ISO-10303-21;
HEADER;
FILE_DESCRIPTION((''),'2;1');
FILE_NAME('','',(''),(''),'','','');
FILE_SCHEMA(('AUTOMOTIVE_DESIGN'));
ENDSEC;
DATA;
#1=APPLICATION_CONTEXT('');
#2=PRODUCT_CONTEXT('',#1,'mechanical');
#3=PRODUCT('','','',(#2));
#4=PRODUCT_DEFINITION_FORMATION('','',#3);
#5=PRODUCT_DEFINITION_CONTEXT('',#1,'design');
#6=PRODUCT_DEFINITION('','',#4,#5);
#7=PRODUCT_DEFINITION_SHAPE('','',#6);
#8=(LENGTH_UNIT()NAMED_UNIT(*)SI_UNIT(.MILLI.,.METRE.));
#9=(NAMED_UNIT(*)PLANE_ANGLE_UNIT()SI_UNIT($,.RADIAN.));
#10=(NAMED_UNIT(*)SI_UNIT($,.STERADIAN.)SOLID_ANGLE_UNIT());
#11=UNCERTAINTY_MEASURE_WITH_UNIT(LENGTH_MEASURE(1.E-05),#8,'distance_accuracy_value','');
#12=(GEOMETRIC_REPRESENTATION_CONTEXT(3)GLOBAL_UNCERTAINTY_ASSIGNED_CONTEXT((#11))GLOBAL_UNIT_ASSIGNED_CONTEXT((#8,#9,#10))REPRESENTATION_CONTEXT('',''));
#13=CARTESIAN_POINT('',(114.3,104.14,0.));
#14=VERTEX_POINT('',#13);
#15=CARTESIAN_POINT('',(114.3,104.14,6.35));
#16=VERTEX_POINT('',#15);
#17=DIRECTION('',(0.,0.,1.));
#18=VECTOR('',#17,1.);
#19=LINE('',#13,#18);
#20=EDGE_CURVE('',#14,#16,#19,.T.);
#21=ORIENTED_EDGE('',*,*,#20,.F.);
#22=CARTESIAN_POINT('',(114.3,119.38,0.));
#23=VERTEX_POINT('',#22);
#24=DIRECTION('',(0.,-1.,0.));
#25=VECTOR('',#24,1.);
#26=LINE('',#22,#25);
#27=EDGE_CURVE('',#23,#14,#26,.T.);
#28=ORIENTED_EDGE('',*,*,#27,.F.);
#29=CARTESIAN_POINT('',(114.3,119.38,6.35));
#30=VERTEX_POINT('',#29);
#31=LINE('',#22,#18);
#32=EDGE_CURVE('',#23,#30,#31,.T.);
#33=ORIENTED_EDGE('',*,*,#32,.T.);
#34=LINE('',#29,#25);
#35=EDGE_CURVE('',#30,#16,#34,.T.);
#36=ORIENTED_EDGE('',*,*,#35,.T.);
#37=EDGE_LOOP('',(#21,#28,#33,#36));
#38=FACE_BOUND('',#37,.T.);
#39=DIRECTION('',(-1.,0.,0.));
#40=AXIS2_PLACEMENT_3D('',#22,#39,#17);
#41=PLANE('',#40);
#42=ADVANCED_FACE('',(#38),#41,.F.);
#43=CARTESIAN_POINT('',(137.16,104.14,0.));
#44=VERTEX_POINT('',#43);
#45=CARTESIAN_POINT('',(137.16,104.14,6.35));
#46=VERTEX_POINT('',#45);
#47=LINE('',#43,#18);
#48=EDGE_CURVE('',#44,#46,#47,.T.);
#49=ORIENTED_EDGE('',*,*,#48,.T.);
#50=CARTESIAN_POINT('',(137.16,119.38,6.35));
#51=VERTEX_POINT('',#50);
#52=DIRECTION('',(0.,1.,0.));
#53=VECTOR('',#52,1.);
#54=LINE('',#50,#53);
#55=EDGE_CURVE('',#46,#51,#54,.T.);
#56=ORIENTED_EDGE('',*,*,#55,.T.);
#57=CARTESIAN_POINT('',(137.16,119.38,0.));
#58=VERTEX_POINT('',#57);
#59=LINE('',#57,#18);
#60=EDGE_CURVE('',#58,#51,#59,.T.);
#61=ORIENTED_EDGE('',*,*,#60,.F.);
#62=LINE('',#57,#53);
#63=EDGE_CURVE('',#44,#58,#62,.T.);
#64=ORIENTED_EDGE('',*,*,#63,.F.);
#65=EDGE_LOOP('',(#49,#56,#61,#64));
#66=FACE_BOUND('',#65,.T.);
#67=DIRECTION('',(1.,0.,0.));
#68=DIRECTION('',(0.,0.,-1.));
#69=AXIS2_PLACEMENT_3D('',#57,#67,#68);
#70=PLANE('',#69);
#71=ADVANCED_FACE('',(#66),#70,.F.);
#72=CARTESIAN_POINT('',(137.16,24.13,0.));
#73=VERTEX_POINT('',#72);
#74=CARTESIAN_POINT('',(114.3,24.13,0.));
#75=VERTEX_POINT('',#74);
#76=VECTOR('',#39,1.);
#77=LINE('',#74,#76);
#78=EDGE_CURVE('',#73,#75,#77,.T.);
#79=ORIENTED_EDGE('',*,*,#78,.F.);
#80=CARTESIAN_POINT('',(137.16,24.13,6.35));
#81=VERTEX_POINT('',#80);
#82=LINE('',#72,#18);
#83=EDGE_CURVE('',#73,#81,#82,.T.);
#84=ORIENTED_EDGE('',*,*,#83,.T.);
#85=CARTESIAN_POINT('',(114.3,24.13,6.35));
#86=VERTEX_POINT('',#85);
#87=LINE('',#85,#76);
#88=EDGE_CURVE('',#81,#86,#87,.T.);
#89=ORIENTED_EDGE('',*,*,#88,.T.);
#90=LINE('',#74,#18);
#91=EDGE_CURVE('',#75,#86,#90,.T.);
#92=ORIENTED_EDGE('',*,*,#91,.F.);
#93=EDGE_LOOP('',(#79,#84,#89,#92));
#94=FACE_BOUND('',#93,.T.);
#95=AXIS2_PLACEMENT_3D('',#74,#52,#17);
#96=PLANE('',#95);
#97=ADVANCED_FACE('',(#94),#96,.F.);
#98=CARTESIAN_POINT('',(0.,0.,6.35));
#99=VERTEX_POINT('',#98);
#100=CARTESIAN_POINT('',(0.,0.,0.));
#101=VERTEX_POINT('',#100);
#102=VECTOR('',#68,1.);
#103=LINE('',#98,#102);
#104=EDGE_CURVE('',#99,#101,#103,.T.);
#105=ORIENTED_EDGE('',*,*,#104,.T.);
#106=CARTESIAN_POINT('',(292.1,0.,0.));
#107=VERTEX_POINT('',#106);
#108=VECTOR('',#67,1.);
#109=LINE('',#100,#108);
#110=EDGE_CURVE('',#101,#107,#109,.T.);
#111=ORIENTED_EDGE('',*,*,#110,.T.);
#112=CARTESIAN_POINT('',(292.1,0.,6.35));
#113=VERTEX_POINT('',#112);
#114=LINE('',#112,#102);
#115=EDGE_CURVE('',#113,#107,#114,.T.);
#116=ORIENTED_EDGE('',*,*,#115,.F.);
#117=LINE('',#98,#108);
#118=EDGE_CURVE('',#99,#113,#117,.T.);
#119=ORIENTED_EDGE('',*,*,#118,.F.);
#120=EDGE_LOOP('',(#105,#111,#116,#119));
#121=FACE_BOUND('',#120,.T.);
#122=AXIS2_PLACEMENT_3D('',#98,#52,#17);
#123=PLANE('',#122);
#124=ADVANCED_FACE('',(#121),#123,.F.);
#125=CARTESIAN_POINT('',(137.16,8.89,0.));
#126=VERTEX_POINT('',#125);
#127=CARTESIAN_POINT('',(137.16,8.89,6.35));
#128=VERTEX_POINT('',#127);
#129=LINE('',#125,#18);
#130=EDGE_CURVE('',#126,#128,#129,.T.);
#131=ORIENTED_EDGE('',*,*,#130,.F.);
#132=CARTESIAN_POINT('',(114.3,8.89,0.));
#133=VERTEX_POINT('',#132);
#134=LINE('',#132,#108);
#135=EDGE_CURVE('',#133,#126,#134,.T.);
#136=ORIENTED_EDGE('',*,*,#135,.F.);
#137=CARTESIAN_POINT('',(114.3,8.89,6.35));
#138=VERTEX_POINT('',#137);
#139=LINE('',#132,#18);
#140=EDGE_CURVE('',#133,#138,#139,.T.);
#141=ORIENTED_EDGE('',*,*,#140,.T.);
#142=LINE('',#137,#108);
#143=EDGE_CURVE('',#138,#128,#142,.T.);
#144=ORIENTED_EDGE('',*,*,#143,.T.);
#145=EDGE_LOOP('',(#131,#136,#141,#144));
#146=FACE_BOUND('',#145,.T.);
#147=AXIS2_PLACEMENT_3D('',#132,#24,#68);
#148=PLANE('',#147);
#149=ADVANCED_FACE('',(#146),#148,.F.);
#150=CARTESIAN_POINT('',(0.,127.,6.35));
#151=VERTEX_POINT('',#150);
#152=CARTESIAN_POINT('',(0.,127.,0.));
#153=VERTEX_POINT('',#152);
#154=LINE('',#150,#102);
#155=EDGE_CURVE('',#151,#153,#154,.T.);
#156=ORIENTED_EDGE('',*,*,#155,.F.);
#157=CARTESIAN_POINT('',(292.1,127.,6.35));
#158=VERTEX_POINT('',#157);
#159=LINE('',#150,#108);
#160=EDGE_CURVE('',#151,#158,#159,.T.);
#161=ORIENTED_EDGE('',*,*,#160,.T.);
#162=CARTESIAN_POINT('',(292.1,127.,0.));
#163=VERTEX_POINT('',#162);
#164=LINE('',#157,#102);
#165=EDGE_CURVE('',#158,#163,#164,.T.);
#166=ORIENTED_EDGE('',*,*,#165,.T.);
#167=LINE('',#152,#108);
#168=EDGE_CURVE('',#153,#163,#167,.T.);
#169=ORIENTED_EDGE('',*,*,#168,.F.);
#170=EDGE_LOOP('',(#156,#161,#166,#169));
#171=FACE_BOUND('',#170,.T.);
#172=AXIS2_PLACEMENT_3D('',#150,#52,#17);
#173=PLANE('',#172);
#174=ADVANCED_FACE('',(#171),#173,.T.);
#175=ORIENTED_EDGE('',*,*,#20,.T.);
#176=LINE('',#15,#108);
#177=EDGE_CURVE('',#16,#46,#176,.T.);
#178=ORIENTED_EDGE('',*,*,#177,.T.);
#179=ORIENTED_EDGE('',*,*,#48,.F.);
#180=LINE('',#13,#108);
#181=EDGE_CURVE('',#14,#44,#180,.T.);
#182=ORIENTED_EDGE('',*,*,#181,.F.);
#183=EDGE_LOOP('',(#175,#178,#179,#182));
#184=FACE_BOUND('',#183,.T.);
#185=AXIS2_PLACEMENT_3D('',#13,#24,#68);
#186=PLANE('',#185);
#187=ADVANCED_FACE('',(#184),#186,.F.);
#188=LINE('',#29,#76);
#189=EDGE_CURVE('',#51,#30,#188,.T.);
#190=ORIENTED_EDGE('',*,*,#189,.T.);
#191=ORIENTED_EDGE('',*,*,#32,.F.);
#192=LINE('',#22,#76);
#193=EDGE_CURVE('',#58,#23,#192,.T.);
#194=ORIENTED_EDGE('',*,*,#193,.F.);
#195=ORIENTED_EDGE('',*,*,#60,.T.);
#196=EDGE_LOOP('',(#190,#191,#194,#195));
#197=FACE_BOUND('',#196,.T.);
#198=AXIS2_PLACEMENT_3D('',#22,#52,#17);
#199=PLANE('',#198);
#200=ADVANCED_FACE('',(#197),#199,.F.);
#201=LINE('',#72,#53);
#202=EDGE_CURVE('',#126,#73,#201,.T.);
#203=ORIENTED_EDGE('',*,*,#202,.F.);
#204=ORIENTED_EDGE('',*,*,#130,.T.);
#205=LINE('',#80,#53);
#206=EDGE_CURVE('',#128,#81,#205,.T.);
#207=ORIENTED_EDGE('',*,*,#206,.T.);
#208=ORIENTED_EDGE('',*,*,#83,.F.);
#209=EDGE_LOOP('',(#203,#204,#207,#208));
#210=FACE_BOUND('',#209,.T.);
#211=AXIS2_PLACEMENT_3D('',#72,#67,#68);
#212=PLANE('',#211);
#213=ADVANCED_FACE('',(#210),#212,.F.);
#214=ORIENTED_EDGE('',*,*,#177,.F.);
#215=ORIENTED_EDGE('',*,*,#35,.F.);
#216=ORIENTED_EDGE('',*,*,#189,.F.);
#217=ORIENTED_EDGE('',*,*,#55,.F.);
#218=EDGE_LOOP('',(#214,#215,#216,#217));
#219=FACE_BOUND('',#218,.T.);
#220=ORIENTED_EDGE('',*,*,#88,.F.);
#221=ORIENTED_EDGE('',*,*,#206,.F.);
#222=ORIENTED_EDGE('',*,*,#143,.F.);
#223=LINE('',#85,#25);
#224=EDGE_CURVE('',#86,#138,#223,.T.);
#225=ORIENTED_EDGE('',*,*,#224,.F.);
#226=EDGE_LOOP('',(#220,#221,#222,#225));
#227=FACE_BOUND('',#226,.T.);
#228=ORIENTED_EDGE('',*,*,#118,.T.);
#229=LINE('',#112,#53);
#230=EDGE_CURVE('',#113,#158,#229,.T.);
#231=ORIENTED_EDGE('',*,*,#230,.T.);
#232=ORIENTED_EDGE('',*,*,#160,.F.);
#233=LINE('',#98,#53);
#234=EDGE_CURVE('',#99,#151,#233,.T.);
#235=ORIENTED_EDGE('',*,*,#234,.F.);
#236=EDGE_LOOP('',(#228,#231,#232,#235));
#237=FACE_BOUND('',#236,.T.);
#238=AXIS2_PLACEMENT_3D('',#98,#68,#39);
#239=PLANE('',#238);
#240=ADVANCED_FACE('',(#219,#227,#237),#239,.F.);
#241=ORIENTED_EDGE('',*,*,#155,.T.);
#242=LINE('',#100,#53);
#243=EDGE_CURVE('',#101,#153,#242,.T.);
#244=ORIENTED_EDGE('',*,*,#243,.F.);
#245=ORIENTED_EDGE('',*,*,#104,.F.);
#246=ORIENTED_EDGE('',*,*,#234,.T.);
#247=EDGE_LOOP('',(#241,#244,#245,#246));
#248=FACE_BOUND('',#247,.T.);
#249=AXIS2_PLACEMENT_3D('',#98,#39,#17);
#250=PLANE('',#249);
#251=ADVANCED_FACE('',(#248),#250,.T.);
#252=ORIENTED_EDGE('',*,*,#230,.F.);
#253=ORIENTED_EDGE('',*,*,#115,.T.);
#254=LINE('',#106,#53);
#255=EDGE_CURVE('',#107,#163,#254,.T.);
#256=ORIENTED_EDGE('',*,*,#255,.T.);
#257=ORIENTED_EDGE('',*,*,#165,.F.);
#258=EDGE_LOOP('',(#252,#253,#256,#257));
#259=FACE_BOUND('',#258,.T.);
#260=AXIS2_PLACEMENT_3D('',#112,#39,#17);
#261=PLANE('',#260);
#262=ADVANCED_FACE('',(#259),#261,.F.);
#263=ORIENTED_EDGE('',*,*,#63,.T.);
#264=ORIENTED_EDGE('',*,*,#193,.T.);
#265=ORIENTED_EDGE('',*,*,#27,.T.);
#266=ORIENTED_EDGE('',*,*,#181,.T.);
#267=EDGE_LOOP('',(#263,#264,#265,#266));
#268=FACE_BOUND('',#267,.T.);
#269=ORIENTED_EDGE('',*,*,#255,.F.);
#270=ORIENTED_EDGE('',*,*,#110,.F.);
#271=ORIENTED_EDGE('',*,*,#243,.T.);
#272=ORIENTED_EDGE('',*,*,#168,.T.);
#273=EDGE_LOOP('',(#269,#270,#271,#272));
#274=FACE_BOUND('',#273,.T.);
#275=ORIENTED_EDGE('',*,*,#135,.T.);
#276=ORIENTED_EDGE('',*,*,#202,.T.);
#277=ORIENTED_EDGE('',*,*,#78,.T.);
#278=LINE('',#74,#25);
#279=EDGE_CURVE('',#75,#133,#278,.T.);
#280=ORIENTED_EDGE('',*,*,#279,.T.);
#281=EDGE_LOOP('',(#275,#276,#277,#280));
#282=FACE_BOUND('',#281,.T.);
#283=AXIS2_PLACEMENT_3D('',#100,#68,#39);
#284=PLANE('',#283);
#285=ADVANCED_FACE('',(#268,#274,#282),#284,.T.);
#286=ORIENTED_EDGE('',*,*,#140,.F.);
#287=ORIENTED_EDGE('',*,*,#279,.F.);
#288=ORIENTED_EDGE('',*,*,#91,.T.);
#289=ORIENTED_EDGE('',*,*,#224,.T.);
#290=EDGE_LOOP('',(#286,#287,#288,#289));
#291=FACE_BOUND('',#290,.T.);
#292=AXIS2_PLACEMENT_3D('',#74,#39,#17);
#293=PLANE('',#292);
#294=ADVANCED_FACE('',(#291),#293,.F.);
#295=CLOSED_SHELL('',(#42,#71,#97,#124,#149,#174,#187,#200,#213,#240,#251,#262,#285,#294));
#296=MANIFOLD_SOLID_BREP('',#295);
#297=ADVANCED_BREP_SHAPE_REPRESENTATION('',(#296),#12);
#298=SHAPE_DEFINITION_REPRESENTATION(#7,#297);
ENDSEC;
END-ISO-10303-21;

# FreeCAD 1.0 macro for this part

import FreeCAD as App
import Part
import Sketcher

V = App.Vector
Q = App.Units.Quantity


def add_polygon(sketch, points):
    """Adds a closed chain of lines whose ends are joined by coincident constraints."""
    first, n = sketch.GeometryCount, len(points)
    for a, b in zip(points, points[1:] + points[:1]):
        sketch.addGeometry(Part.LineSegment(App.Vector(*a, 0), App.Vector(*b, 0)), False)
    for i in range(n):
        sketch.addConstraint(Sketcher.Constraint("Coincident", first + i, 2, first + (i + 1) % n, 1))

doc = App.newDocument("Part")
body = doc.addObject("PartDesign::Body", "Body")

# Sketch on XY plane
sketch1 = body.newObject("Sketcher::SketchObject", "Sketch")
sketch1.AttachmentSupport = (doc.getObject("XY_Plane"), [""])
sketch1.MapMode = "FlatFace"
add_polygon(sketch1, [(0, 127), (0, 0), (292.1, 0), (292.1, 127)])  # lines 0-3
sketch1.addConstraint([
    Sketcher.Constraint("Vertical", 0),
    Sketcher.Constraint("Horizontal", 1),
    Sketcher.Constraint("Vertical", 2),
    Sketcher.Constraint("Horizontal", 3),
    Sketcher.Constraint("Coincident", 0, 2, -1, 1),
    Sketcher.Constraint("DistanceY", 0, 2, 0, 1, Q("5 in")),
    Sketcher.Constraint("DistanceX", 1, 1, 1, 2, Q("11.5 in")),
])
pad1 = body.newObject("PartDesign::Pad", "Pad")
pad1.Profile = sketch1
pad1.Length = Q("0.25 in")

# Sketch on XY plane
sketch2 = body.newObject("Sketcher::SketchObject", "Sketch001")
sketch2.AttachmentSupport = (doc.getObject("XY_Plane"), [""])
sketch2.MapMode = "FlatFace"
sketch2.AttachmentOffset = App.Placement(V(0, 0, 0.25 * 25.4), App.Rotation())
add_polygon(sketch2, [(114.3, 24.13), (114.3, 8.89), (137.16, 8.89), (137.16, 24.13)])  # lines 0-3
sketch2.addConstraint([
    Sketcher.Constraint("Vertical", 0),
    Sketcher.Constraint("Horizontal", 1),
    Sketcher.Constraint("Vertical", 2),
    Sketcher.Constraint("Horizontal", 3),
    Sketcher.Constraint("DistanceX", 1, 1, 1, 2, Q("0.9 in")),
    Sketcher.Constraint("DistanceY", 0, 2, 0, 1, Q("0.6 in")),
    Sketcher.Constraint("DistanceX", -1, 1, 0, 2, Q("4.5 in")),
    Sketcher.Constraint("DistanceY", -1, 1, 0, 2, Q("0.35 in")),
])
pocket1 = body.newObject("PartDesign::Pocket", "Pocket")
pocket1.Profile = sketch2
pocket1.Length = Q("0.25 in")
doc.recompute()

linearpattern = body.newObject("PartDesign::LinearPattern", "LinearPattern")
linearpattern.Originals = [pocket1]
linearpattern.Direction = (doc.getObject("Y_Axis"), [""])
linearpattern.Mode = "offset"
linearpattern.Offset = Q("3.75 in")
linearpattern.Occurrences = 2
body.Tip = linearpattern

doc.recompute()
